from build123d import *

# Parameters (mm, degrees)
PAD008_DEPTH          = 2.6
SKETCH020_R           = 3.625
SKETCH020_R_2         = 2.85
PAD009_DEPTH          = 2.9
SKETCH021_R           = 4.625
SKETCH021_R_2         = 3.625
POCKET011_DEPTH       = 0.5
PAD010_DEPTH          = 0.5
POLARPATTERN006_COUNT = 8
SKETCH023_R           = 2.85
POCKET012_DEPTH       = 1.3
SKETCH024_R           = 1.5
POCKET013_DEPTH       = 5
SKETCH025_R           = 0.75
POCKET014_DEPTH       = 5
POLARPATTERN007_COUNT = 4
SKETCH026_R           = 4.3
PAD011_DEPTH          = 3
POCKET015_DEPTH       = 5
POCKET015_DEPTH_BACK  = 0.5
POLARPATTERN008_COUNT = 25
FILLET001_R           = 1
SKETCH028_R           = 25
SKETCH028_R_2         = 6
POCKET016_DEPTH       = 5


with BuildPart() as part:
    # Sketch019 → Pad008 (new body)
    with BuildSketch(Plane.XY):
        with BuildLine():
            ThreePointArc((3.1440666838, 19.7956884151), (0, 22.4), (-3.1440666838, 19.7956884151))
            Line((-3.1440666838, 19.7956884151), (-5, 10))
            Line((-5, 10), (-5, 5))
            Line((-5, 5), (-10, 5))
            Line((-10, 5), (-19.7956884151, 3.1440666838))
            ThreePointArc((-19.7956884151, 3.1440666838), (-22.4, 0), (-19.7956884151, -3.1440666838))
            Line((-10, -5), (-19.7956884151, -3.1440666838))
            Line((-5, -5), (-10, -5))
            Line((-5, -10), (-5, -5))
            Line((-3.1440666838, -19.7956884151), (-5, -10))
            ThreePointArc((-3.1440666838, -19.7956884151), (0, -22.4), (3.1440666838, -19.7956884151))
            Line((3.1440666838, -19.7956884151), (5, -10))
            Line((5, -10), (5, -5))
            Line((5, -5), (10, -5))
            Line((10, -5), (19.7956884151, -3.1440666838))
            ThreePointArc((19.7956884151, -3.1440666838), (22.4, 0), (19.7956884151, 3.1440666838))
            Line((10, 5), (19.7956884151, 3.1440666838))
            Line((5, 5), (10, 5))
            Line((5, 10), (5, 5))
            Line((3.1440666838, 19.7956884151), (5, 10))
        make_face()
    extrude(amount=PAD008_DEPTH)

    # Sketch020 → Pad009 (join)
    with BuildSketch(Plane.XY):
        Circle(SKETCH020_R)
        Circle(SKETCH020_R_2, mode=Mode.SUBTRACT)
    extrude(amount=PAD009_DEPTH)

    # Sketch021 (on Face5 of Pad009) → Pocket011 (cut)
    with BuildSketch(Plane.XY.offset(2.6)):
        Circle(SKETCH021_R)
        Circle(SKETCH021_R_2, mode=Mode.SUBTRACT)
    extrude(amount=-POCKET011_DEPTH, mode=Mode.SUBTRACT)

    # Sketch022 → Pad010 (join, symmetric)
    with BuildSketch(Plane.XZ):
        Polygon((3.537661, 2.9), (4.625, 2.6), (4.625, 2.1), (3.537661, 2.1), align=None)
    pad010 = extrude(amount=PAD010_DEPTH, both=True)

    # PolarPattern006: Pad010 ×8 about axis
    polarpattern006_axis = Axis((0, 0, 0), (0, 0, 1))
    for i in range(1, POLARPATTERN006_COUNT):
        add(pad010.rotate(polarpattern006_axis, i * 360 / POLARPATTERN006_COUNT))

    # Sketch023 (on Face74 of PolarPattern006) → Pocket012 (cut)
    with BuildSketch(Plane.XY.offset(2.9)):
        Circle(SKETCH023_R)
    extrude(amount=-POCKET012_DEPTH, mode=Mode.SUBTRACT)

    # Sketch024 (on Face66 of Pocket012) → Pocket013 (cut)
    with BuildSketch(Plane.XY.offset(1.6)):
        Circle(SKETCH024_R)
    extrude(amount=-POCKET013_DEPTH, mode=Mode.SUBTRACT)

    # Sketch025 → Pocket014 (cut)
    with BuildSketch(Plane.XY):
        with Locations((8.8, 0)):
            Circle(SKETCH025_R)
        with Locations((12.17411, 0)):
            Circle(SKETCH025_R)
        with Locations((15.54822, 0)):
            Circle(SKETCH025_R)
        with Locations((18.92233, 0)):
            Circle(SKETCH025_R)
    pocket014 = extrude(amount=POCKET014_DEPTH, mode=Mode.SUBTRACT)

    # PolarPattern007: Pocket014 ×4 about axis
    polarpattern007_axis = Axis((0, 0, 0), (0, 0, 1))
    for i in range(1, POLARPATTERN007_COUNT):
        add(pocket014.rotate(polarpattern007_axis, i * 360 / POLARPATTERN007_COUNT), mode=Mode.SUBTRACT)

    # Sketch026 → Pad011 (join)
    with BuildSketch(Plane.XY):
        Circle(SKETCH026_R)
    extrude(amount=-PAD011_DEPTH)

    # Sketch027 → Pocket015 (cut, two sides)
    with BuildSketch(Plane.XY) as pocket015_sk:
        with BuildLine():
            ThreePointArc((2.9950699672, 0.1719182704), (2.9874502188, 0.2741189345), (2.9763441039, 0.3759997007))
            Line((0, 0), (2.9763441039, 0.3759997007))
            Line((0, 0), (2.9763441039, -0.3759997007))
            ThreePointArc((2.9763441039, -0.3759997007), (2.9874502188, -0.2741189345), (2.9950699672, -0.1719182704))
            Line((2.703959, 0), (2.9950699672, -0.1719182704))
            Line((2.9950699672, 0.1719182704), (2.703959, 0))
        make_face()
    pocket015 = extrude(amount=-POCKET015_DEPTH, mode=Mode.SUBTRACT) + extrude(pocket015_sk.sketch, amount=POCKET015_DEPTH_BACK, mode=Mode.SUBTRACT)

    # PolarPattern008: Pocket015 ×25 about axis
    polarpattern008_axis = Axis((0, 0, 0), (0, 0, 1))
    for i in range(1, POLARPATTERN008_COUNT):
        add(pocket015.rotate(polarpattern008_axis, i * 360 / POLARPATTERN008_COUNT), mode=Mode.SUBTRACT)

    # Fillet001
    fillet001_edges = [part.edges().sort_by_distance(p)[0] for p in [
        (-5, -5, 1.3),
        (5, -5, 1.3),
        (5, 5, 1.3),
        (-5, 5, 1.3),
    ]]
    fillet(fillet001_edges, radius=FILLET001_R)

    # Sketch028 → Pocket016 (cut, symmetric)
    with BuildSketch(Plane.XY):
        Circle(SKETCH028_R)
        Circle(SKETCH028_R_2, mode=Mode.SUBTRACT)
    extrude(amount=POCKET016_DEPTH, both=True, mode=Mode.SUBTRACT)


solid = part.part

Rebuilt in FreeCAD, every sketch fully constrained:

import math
import FreeCAD as App
import Part
import Sketcher
Q = App.Units.Quantity


def edges_at(feature, points):
    """Names of the edges that pass closest to the given points."""
    edges = feature.Shape.Edges
    near = lambda p: min(range(len(edges)), key=lambda i: edges[i].distToShape(Part.Vertex(*p))[0])
    return sorted({f"Edge{near(p) + 1}" for p in points})


def add_polygon(sketch, points):
    """Adds a closed chain of lines whose ends are joined by coincident constraints."""
    first, n = sketch.GeometryCount, len(points)
    for a, b in zip(points, points[1:] + points[:1]):
        sketch.addGeometry(Part.LineSegment(App.Vector(*a, 0), App.Vector(*b, 0)), False)
    for i in range(n):
        sketch.addConstraint(Sketcher.Constraint("Coincident", first + i, 2, first + (i + 1) % n, 1))

doc = App.newDocument("Part")
body = doc.addObject("PartDesign::Body", "Body")

# Sketch on XY plane
sketch1 = body.newObject("Sketcher::SketchObject", "Sketch")
sketch1.AttachmentSupport = (doc.getObject("XY_Plane"), [""])
sketch1.MapMode = "FlatFace"
sketch1.addGeometry([
    Part.ArcOfCircle(Part.Circle(App.Vector(0, 19.2, 0), App.Vector(0, 0, 1), 3.2), math.radians(10.728341), math.radians(169.271659)),  # 0
    Part.LineSegment(App.Vector(-3.144067, 19.795688, 0), App.Vector(-5, 10, 0)),  # 1
    Part.LineSegment(App.Vector(-5, 10, 0), App.Vector(-5, 5, 0)),  # 2
    Part.LineSegment(App.Vector(-5, 5, 0), App.Vector(-10, 5, 0)),  # 3
    Part.LineSegment(App.Vector(-10, 5, 0), App.Vector(-19.795688, 3.144067, 0)),  # 4
    Part.ArcOfCircle(Part.Circle(App.Vector(-19.2, 0, 0), App.Vector(0, 0, 1), 3.2), math.radians(100.728341), math.radians(259.271659)),  # 5
    Part.LineSegment(App.Vector(-19.795688, -3.144067, 0), App.Vector(-10, -5, 0)),  # 6
    Part.LineSegment(App.Vector(-10, -5, 0), App.Vector(-5, -5, 0)),  # 7
    Part.LineSegment(App.Vector(-5, -5, 0), App.Vector(-5, -10, 0)),  # 8
    Part.LineSegment(App.Vector(-5, -10, 0), App.Vector(-3.144067, -19.795688, 0)),  # 9
    Part.ArcOfCircle(Part.Circle(App.Vector(0, -19.2, 0), App.Vector(0, 0, 1), 3.2), math.radians(-169.271659), math.radians(-10.728341)),  # 10
    Part.LineSegment(App.Vector(3.144067, -19.795688, 0), App.Vector(5, -10, 0)),  # 11
    Part.LineSegment(App.Vector(5, -10, 0), App.Vector(5, -5, 0)),  # 12
    Part.LineSegment(App.Vector(5, -5, 0), App.Vector(10, -5, 0)),  # 13
    Part.LineSegment(App.Vector(10, -5, 0), App.Vector(19.795688, -3.144067, 0)),  # 14
    Part.ArcOfCircle(Part.Circle(App.Vector(19.2, 0, 0), App.Vector(0, 0, 1), 3.2), math.radians(-79.271659), math.radians(79.271659)),  # 15
    Part.LineSegment(App.Vector(19.795688, 3.144067, 0), App.Vector(10, 5, 0)),  # 16
    Part.LineSegment(App.Vector(10, 5, 0), App.Vector(5, 5, 0)),  # 17
    Part.LineSegment(App.Vector(5, 5, 0), App.Vector(5, 10, 0)),  # 18
    Part.LineSegment(App.Vector(5, 10, 0), App.Vector(3.144067, 19.795688, 0)),  # 19
], False)
sketch1.addConstraint([
    Sketcher.Constraint("Tangent", 0, 2, 1, 1),
    Sketcher.Constraint("Coincident", 1, 2, 2, 1),
    Sketcher.Constraint("Coincident", 2, 2, 3, 1),
    Sketcher.Constraint("Coincident", 3, 2, 4, 1),
    Sketcher.Constraint("Tangent", 4, 2, 5, 1),
    Sketcher.Constraint("Tangent", 5, 2, 6, 1),
    Sketcher.Constraint("Coincident", 6, 2, 7, 1),
    Sketcher.Constraint("Coincident", 7, 2, 8, 1),
    Sketcher.Constraint("Coincident", 8, 2, 9, 1),
    Sketcher.Constraint("Tangent", 9, 2, 10, 1),
    Sketcher.Constraint("Tangent", 10, 2, 11, 1),
    Sketcher.Constraint("Coincident", 11, 2, 12, 1),
    Sketcher.Constraint("Coincident", 12, 2, 13, 1),
    Sketcher.Constraint("Coincident", 13, 2, 14, 1),
    Sketcher.Constraint("Tangent", 14, 2, 15, 1),
    Sketcher.Constraint("Tangent", 15, 2, 16, 1),
    Sketcher.Constraint("Coincident", 16, 2, 17, 1),
    Sketcher.Constraint("Coincident", 17, 2, 18, 1),
    Sketcher.Constraint("Coincident", 18, 2, 19, 1),
    Sketcher.Constraint("Tangent", 19, 2, 0, 1),
    Sketcher.Constraint("Vertical", 2),
    Sketcher.Constraint("Horizontal", 3),
    Sketcher.Constraint("Horizontal", 7),
    Sketcher.Constraint("Vertical", 8),
    Sketcher.Constraint("Vertical", 12),
    Sketcher.Constraint("Horizontal", 13),
    Sketcher.Constraint("Horizontal", 17),
    Sketcher.Constraint("Vertical", 18),
    Sketcher.Constraint("Equal", 0, 5),
    Sketcher.Constraint("Equal", 5, 10),
    Sketcher.Constraint("Equal", 10, 15),
    Sketcher.Constraint("Symmetric", 0, 3, 10, 3, -1, 1),
    Sketcher.Constraint("Symmetric", 5, 3, 15, 3, -1, 1),
    Sketcher.Constraint("Symmetric", 1, 2, 11, 2, -1, 1),
    Sketcher.Constraint("Symmetric", 3, 2, 13, 2, -1, 1),
    Sketcher.Constraint("Symmetric", 6, 2, 16, 2, -1, 1),
    Sketcher.Constraint("Symmetric", 8, 2, 18, 2, -1, 1),
    Sketcher.Constraint("Symmetric", 9, 2, 10, 2, -2),
    Sketcher.Constraint("Symmetric", 7, 2, 12, 2, -2),
    Sketcher.Constraint("Symmetric", 5, 2, 14, 2, -2),
    Sketcher.Constraint("Perpendicular", 1, 6),
    Sketcher.Constraint("Equal", 17, 2),
    Sketcher.Constraint("Equal", 1, 4),
    Sketcher.Constraint("Radius", 0, Q("3.2 mm")),
    Sketcher.Constraint("DistanceX", 3, 2, 3, 1, Q("5 mm")),
    Sketcher.Constraint("DistanceX", 1, 2, -1, 1, Q("5 mm")),
    Sketcher.Constraint("DistanceY", -1, 1, 0, 3, Q("19.2 mm")),
])
pad1 = body.newObject("PartDesign::Pad", "Pad")
pad1.Profile = sketch1
pad1.Length = 2.6

# Sketch on XY plane
sketch2 = body.newObject("Sketcher::SketchObject", "Sketch001")
sketch2.AttachmentSupport = (doc.getObject("XY_Plane"), [""])
sketch2.MapMode = "FlatFace"
sketch2.addGeometry([
    Part.Circle(App.Vector(0, 0, 0), App.Vector(0, 0, 1), 3.625),
    Part.Circle(App.Vector(0, 0, 0), App.Vector(0, 0, 1), 2.85),
], False)
sketch2.addConstraint([
    Sketcher.Constraint("Coincident", 0, 3, -1, 1),
    Sketcher.Constraint("Coincident", 1, 3, -1, 1),
    Sketcher.Constraint("Diameter", 1, Q("5.7 mm")),
    Sketcher.Constraint("Diameter", 0, Q("7.25 mm")),
])
pad2 = body.newObject("PartDesign::Pad", "Pad001")
pad2.Profile = sketch2
pad2.Length = 2.9

# Sketch on XY plane
sketch3 = body.newObject("Sketcher::SketchObject", "Sketch002")
sketch3.AttachmentSupport = (doc.getObject("XY_Plane"), [""])
sketch3.MapMode = "FlatFace"
sketch3.AttachmentOffset = App.Placement(App.Vector(0, 0, 2.6), App.Rotation())
sketch3.addGeometry([
    Part.Circle(App.Vector(0, 0, 0), App.Vector(0, 0, 1), 4.625),
    Part.Circle(App.Vector(0, 0, 0), App.Vector(0, 0, 1), 3.625),
], False)
sketch3.addConstraint([
    Sketcher.Constraint("Coincident", 0, 3, -1, 1),
    Sketcher.Constraint("Coincident", 1, 3, -1, 1),
    Sketcher.Constraint("Diameter", 0, Q("9.25 mm")),
    Sketcher.Constraint("Diameter", 1, Q("7.25 mm")),
])
pocket1 = body.newObject("PartDesign::Pocket", "Pocket")
pocket1.Profile = sketch3
pocket1.Length = 0.5

# Sketch on XZ plane
sketch4 = body.newObject("Sketcher::SketchObject", "Sketch003")
sketch4.AttachmentSupport = (doc.getObject("XZ_Plane"), [""])
sketch4.MapMode = "FlatFace"
add_polygon(sketch4, [(4.625, 2.6), (3.537661, 2.9), (3.537661, 2.1), (4.625, 2.1)])  # lines 0-3
sketch4.addConstraint([
    Sketcher.Constraint("Vertical", 1),
    Sketcher.Constraint("Horizontal", 2),
    Sketcher.Constraint("Vertical", 3),
    Sketcher.Constraint("DistanceY", 1, 2, 1, 1, Q("0.8 mm")),
    Sketcher.Constraint("DistanceY", 3, 1, 3, 2, Q("0.5 mm")),
    Sketcher.Constraint("DistanceY", -1, 1, 0, 2, Q("2.9 mm")),
    Sketcher.Constraint("DistanceX", -1, 1, 2, 2, Q("4.625 mm")),
    Sketcher.Constraint("DistanceX", 2, 1, 2, 2, Q("1.087339 mm")),
])
pad3 = body.newObject("PartDesign::Pad", "Pad002")
pad3.Profile = sketch4
pad3.Length = 1
pad3.Midplane = True
doc.recompute()

polarpattern = body.newObject("PartDesign::PolarPattern", "PolarPattern")
polarpattern.Originals = [pad3]
polarpattern.Axis = (doc.getObject("Z_Axis"), [""])
polarpattern.Angle = 360
polarpattern.Occurrences = 8
body.Tip = polarpattern

# Sketch on XY plane
sketch5 = body.newObject("Sketcher::SketchObject", "Sketch004")
sketch5.AttachmentSupport = (doc.getObject("XY_Plane"), [""])
sketch5.MapMode = "FlatFace"
sketch5.AttachmentOffset = App.Placement(App.Vector(0, 0, 2.9), App.Rotation())
sketch5.addGeometry(Part.Circle(App.Vector(0, 0, 0), App.Vector(0, 0, 1), 2.85), False)
sketch5.addConstraint([
    Sketcher.Constraint("Coincident", 0, 3, -1, 1),
    Sketcher.Constraint("Diameter", 0, Q("5.7 mm")),
])
pocket2 = body.newObject("PartDesign::Pocket", "Pocket001")
pocket2.Profile = sketch5
pocket2.Length = 1.3

# Sketch on XY plane
sketch6 = body.newObject("Sketcher::SketchObject", "Sketch005")
sketch6.AttachmentSupport = (doc.getObject("XY_Plane"), [""])
sketch6.MapMode = "FlatFace"
sketch6.AttachmentOffset = App.Placement(App.Vector(0, 0, 1.6), App.Rotation())
sketch6.addGeometry(Part.Circle(App.Vector(0, 0, 0), App.Vector(0, 0, 1), 1.5), False)
sketch6.addConstraint([
    Sketcher.Constraint("Coincident", 0, 3, -1, 1),
    Sketcher.Constraint("Diameter", 0, Q("3 mm")),
])
pocket3 = body.newObject("PartDesign::Pocket", "Pocket002")
pocket3.Profile = sketch6
pocket3.Length = 5

# Sketch on XY plane
sketch7 = body.newObject("Sketcher::SketchObject", "Sketch006")
sketch7.AttachmentSupport = (doc.getObject("XY_Plane"), [""])
sketch7.MapMode = "FlatFace"
sketch7.addGeometry([
    Part.Circle(App.Vector(8.8, 0, 0), App.Vector(0, 0, 1), 0.75),
    Part.Circle(App.Vector(12.17411, 0, 0), App.Vector(0, 0, 1), 0.75),
    Part.Circle(App.Vector(15.54822, 0, 0), App.Vector(0, 0, 1), 0.75),
    Part.Circle(App.Vector(18.92233, 0, 0), App.Vector(0, 0, 1), 0.75),
], False)
sketch7.addConstraint([
    Sketcher.Constraint("Equal", 0, 1),
    Sketcher.Constraint("Equal", 1, 2),
    Sketcher.Constraint("Equal", 2, 3),
    Sketcher.Constraint("PointOnObject", 0, 3, -1),
    Sketcher.Constraint("PointOnObject", 1, 3, -1),
    Sketcher.Constraint("PointOnObject", 2, 3, -1),
    Sketcher.Constraint("PointOnObject", 3, 3, -1),
    Sketcher.Constraint("Diameter", 0, Q("1.5 mm")),
    Sketcher.Constraint("DistanceX", -1, 1, 0, 3, Q("8.8 mm")),
    Sketcher.Constraint("DistanceX", -1, 1, 1, 3, Q("12.17411 mm")),
    Sketcher.Constraint("DistanceX", -1, 1, 2, 3, Q("15.54822 mm")),
    Sketcher.Constraint("DistanceX", -1, 1, 3, 3, Q("18.92233 mm")),
])
pocket4 = body.newObject("PartDesign::Pocket", "Pocket003")
pocket4.Profile = sketch7
pocket4.Length = 5
pocket4.Reversed = True
doc.recompute()

polarpattern2 = body.newObject("PartDesign::PolarPattern", "PolarPattern001")
polarpattern2.Originals = [pocket4]
polarpattern2.Axis = (doc.getObject("Z_Axis"), [""])
polarpattern2.Angle = 360
polarpattern2.Occurrences = 4
body.Tip = polarpattern2

# Sketch on XY plane
sketch8 = body.newObject("Sketcher::SketchObject", "Sketch007")
sketch8.AttachmentSupport = (doc.getObject("XY_Plane"), [""])
sketch8.MapMode = "FlatFace"
sketch8.addGeometry(Part.Circle(App.Vector(0, 0, 0), App.Vector(0, 0, 1), 4.3), False)
sketch8.addConstraint([
    Sketcher.Constraint("Coincident", 0, 3, -1, 1),
    Sketcher.Constraint("Diameter", 0, Q("8.6 mm")),
])
pad4 = body.newObject("PartDesign::Pad", "Pad003")
pad4.Profile = sketch8
pad4.Length = 3
pad4.Reversed = True

# Sketch on XY plane
sketch9 = body.newObject("Sketcher::SketchObject", "Sketch008")
sketch9.AttachmentSupport = (doc.getObject("XY_Plane"), [""])
sketch9.MapMode = "FlatFace"
sketch9.addGeometry([
    Part.ArcOfCircle(Part.Circle(App.Vector(0, 0, 0), App.Vector(0, 0, 1), 3), math.radians(3.285197), math.radians(7.2)),  # 0
    Part.LineSegment(App.Vector(2.976344, 0.376, 0), App.Vector(0, 0, 0)),  # 1
    Part.LineSegment(App.Vector(0, 0, 0), App.Vector(2.976344, -0.376, 0)),  # 2
    Part.ArcOfCircle(Part.Circle(App.Vector(0, 0, 0), App.Vector(0, 0, 1), 3), math.radians(-7.2), math.radians(-3.285197)),  # 3
    Part.LineSegment(App.Vector(2.99507, -0.171918, 0), App.Vector(2.703959, 0, 0)),  # 4
    Part.LineSegment(App.Vector(2.703959, 0, 0), App.Vector(2.99507, 0.171918, 0)),  # 5
], False)
sketch9.addConstraint([
    Sketcher.Constraint("Coincident", 0, 2, 1, 1),
    Sketcher.Constraint("Coincident", 1, 2, 2, 1),
    Sketcher.Constraint("Coincident", 2, 2, 3, 1),
    Sketcher.Constraint("Coincident", 3, 2, 4, 1),
    Sketcher.Constraint("Coincident", 4, 2, 5, 1),
    Sketcher.Constraint("Coincident", 5, 2, 0, 1),
    Sketcher.Constraint("Coincident", 0, 3, -1, 1),
    Sketcher.Constraint("Coincident", 3, 3, -1, 1),
    Sketcher.Constraint("Coincident", 1, 2, -1, 1),
    Sketcher.Constraint("Equal", 0, 3),
    Sketcher.Constraint("PointOnObject", 4, 2, -1),
    Sketcher.Constraint("Vertical", 0, 2, 2, 2),
    Sketcher.Constraint("Vertical", 3, 2, 5, 2),
    Sketcher.Constraint("Radius", 0, Q("3 mm")),
    Sketcher.Constraint("Angle", 1, Q("-172.8 deg")),
    Sketcher.Constraint("DistanceX", -1, 1, 3, 2, Q("2.99507 mm")),
    Sketcher.Constraint("DistanceX", -1, 1, 4, 2, Q("2.703959 mm")),
])
pocket5 = body.newObject("PartDesign::Pocket", "Pocket004")
pocket5.Profile = sketch9
pocket5.Type = "TwoLengths"
pocket5.Length = 5
pocket5.Length2 = 0.5
doc.recompute()

polarpattern3 = body.newObject("PartDesign::PolarPattern", "PolarPattern002")
polarpattern3.Originals = [pocket5]
polarpattern3.Axis = (doc.getObject("Z_Axis"), [""])
polarpattern3.Angle = 360
polarpattern3.Occurrences = 25
body.Tip = polarpattern3
doc.recompute()

fillet = body.newObject("PartDesign::Fillet", "Fillet")
fillet.Base = (polarpattern3, edges_at(polarpattern3, [
    (-5, -5, 1.3),
    (5, -5, 1.3),
    (5, 5, 1.3),
    (-5, 5, 1.3),
]))
fillet.Radius = 1

# Sketch on XY plane
sketch10 = body.newObject("Sketcher::SketchObject", "Sketch009")
sketch10.AttachmentSupport = (doc.getObject("XY_Plane"), [""])
sketch10.MapMode = "FlatFace"
sketch10.addGeometry([
    Part.Circle(App.Vector(0, 0, 0), App.Vector(0, 0, 1), 25),
    Part.Circle(App.Vector(0, 0, 0), App.Vector(0, 0, 1), 6),
], False)
sketch10.addConstraint([
    Sketcher.Constraint("Coincident", 0, 3, -1, 1),
    Sketcher.Constraint("Coincident", 1, 3, -1, 1),
    Sketcher.Constraint("Diameter", 0, Q("50 mm")),
    Sketcher.Constraint("Diameter", 1, Q("12 mm")),
])
pocket6 = body.newObject("PartDesign::Pocket", "Pocket005")
pocket6.Profile = sketch10
pocket6.Length = 10
pocket6.Midplane = True

doc.recompute()
